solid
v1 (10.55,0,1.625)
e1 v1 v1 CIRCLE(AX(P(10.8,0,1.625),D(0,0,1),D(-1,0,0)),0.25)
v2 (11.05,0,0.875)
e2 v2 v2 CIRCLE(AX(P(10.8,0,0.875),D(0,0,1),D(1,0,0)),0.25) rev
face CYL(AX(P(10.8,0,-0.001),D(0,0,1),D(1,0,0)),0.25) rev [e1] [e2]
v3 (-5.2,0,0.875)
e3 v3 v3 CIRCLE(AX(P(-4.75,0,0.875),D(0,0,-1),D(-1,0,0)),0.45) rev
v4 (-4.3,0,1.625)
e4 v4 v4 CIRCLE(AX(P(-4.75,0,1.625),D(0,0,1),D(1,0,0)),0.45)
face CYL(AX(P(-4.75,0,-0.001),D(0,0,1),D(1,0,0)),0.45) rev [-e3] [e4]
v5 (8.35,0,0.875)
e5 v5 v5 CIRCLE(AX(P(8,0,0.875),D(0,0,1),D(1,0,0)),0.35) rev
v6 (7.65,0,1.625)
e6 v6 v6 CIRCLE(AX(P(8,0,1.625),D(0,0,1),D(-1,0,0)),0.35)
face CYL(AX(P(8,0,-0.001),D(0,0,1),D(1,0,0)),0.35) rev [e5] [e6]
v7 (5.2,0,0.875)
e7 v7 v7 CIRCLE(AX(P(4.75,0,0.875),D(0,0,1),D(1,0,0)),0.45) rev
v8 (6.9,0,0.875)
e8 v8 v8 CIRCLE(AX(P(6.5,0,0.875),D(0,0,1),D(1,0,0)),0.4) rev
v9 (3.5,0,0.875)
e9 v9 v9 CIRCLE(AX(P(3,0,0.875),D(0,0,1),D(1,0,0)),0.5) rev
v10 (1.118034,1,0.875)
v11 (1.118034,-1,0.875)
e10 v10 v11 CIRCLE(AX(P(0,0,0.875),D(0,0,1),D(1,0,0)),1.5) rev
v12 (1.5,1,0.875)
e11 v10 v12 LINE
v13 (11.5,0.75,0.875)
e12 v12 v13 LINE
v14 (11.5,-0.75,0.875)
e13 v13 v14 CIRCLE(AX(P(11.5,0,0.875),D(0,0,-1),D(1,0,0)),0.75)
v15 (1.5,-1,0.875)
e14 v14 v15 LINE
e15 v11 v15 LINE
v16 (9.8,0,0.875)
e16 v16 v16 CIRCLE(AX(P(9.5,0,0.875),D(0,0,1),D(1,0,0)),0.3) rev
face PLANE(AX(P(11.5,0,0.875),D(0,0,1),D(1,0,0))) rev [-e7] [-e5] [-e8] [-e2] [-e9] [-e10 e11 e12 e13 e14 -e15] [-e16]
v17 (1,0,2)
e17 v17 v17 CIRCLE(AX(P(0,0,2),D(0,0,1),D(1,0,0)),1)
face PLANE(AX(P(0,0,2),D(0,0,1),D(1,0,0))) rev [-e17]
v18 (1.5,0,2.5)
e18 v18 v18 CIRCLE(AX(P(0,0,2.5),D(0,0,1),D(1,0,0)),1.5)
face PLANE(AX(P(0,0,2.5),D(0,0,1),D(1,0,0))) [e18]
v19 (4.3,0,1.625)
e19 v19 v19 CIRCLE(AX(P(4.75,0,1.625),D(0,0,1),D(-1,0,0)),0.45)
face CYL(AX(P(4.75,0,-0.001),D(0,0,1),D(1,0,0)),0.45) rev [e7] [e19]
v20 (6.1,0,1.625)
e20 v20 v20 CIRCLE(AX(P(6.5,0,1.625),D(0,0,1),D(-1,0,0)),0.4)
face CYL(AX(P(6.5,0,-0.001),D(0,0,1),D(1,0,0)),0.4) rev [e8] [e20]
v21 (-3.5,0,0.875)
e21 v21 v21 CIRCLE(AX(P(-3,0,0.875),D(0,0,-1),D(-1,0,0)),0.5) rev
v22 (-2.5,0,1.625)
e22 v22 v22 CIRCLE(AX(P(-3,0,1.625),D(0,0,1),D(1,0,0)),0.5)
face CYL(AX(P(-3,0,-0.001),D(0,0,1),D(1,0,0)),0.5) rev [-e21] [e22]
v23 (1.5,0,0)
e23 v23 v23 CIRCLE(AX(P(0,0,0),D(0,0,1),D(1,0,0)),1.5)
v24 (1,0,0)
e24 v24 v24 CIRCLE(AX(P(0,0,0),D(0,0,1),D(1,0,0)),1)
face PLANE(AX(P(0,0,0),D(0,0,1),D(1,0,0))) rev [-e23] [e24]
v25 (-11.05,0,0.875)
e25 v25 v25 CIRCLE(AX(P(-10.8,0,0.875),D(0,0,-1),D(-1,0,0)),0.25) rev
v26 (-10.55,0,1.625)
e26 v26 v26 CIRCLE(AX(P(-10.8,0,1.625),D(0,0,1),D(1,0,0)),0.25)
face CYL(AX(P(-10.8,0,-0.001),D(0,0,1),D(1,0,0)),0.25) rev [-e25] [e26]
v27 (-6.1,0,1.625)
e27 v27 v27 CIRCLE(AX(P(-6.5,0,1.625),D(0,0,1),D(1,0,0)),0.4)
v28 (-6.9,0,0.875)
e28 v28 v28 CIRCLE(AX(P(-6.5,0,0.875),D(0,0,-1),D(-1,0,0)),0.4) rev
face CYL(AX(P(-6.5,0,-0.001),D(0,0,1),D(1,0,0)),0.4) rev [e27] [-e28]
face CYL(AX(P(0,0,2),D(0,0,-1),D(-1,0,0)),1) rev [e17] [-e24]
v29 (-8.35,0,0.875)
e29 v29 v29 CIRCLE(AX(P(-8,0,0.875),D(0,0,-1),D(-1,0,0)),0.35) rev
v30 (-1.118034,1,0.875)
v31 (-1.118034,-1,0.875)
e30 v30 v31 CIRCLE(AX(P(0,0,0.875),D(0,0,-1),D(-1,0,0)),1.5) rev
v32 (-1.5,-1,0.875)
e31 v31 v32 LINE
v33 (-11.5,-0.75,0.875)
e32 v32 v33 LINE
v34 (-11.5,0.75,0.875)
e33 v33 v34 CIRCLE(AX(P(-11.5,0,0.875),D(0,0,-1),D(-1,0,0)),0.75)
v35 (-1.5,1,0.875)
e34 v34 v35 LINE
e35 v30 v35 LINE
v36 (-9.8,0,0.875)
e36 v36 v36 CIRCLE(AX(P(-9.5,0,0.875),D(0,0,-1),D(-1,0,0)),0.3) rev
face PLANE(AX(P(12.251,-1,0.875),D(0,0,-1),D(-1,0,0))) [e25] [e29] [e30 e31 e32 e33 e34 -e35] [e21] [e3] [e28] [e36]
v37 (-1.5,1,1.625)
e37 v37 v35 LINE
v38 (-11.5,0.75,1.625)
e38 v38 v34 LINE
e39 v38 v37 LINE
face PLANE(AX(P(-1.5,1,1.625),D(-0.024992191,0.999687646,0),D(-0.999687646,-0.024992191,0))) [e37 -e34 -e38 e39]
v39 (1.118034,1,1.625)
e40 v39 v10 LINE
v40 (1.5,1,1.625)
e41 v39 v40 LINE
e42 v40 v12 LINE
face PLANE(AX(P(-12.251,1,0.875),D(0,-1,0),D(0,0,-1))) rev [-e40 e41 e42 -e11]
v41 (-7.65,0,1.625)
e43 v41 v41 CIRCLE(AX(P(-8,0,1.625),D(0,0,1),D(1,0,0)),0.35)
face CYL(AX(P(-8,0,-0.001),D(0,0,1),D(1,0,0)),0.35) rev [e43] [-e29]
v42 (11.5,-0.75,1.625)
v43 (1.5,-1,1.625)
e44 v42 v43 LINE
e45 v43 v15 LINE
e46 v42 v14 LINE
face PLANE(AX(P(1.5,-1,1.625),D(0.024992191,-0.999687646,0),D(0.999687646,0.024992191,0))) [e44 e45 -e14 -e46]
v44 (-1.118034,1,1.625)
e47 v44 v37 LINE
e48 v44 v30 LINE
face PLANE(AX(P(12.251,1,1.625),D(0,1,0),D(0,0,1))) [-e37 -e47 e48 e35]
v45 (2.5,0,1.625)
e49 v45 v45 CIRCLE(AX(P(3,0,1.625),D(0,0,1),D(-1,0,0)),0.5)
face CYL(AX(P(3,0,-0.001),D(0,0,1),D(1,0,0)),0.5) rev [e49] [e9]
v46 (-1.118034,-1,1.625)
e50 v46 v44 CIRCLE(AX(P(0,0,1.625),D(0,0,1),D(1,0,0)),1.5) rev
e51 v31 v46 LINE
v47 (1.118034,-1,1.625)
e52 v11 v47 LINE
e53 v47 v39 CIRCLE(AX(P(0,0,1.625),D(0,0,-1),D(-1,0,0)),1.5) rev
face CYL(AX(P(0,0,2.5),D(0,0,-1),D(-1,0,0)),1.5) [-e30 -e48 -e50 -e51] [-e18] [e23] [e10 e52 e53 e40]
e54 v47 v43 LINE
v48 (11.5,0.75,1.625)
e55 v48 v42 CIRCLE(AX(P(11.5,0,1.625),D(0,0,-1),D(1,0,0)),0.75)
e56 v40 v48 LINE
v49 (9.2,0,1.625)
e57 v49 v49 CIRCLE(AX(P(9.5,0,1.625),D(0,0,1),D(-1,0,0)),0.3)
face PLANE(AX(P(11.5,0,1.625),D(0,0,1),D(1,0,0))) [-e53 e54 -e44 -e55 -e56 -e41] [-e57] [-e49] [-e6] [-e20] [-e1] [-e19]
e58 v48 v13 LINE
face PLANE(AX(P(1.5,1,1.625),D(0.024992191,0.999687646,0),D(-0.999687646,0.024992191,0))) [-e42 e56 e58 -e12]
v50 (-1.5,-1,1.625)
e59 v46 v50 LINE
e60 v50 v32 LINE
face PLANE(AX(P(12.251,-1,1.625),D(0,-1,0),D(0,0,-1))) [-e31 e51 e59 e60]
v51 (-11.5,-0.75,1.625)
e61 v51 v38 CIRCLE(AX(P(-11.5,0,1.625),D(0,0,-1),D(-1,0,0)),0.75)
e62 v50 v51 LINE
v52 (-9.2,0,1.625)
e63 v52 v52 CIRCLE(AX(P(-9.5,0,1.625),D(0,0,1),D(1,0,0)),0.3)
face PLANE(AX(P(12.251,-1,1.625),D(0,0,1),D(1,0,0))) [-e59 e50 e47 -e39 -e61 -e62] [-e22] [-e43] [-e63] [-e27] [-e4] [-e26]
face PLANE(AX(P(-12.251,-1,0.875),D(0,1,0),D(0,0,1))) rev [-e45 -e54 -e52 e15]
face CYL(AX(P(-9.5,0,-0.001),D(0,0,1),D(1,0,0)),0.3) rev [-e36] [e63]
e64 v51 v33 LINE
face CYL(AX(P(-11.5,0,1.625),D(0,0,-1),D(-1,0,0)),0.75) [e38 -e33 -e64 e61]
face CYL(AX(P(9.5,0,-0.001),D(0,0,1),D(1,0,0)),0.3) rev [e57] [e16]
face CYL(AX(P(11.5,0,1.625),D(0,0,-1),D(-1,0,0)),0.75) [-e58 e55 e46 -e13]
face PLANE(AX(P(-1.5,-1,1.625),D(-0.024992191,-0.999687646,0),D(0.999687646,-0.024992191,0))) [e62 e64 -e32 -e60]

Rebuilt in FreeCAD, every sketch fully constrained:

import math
import FreeCAD as App
import Part
import Sketcher
Q = App.Units.Quantity

doc = App.newDocument("Part")
body = doc.addObject("PartDesign::Body", "Body")

# Sketch on XY plane
sketch1 = doc.addObject("Sketcher::SketchObject", "Sketch")
body.addObject(sketch1)
sketch1.AttachmentSupport = (doc.XY_Plane, [""])
sketch1.MapMode = "FlatFace"
sketch1.addGeometry(Part.Circle(App.Vector(0, 0, 0), App.Vector(0, 0, 1), 1.5), False)
sketch1.addConstraint([
    Sketcher.Constraint("Coincident", 0, 3, -1, 1),
    Sketcher.Constraint("Diameter", 0, Q("3 mm")),
])
pad1 = doc.addObject("PartDesign::Pad", "Pad")
body.addObject(pad1)
pad1.Profile = sketch1
pad1.Length = 2.5

# Sketch on XY plane
sketch2 = doc.addObject("Sketcher::SketchObject", "Sketch001")
body.addObject(sketch2)
sketch2.AttachmentSupport = (doc.XY_Plane, [""])
sketch2.MapMode = "FlatFace"
sketch2.addGeometry(Part.Circle(App.Vector(0, 0, 0), App.Vector(0, 0, 1), 1), False)
sketch2.addConstraint([
    Sketcher.Constraint("Coincident", 0, 3, -1, 1),
    Sketcher.Constraint("Diameter", 0, Q("2 mm")),
])
pocket1 = doc.addObject("PartDesign::Pocket", "Pocket")
body.addObject(pocket1)
pocket1.Profile = sketch2
pocket1.Length = 2
pocket1.Reversed = True
body2 = doc.addObject("PartDesign::Body", "Body001")

# Sketch on XY plane
sketch3 = doc.addObject("Sketcher::SketchObject", "Sketch002")
body2.addObject(sketch3)
sketch3.AttachmentSupport = (doc.getObject("XY_Plane001"), [""])
sketch3.MapMode = "FlatFace"
sketch3.AttachmentOffset = App.Placement(App.Vector(0, 0, 1.25), App.Rotation())
sketch3.addGeometry([
    Part.LineSegment(App.Vector(-1.5, -1, 0), App.Vector(-11.5, -0.75, 0)),
    Part.ArcOfCircle(Part.Circle(App.Vector(-11.5, 0, 0), App.Vector(0, 0, 1), 0.75), math.radians(90), math.radians(270)),
    Part.LineSegment(App.Vector(-11.5, 0.75, 0), App.Vector(-1.5, 1, 0)),
    Part.LineSegment(App.Vector(-1.5, 1, 0), App.Vector(-1.5, -1, 0)),
], False)
sketch3.addConstraint([
    Sketcher.Constraint("Coincident", 0, 2, 1, 2),
    Sketcher.Constraint("Coincident", 1, 1, 2, 1),
    Sketcher.Constraint("Coincident", 2, 2, 3, 1),
    Sketcher.Constraint("Coincident", 3, 2, 0, 1),
    Sketcher.Constraint("Vertical", 3),
    Sketcher.Constraint("Symmetric", 0, 2, 1, 1, -1),
    Sketcher.Constraint("Vertical", 1, 3, 0, 2),
    Sketcher.Constraint("Equal", 0, 2),
    Sketcher.Constraint("DistanceY", 3, 2, 3, 1, Q("2 mm")),
    Sketcher.Constraint("Radius", 1, Q("0.75 mm")),
    Sketcher.Constraint("DistanceX", 1, 1, 2, 2, Q("10 mm")),
    Sketcher.Constraint("DistanceX", 1, 3, -1, 1, Q("11.5 mm")),
])
pad2 = doc.addObject("PartDesign::Pad", "Pad001")
body2.addObject(pad2)
pad2.Profile = sketch3
pad2.Type = "TwoLengths"
pad2.Length = 0.375
pad2.Length2 = 0.375
pad2.Reversed = True
body3 = doc.addObject("PartDesign::Body", "Body002")

# Sketch on XY plane
sketch4 = doc.addObject("Sketcher::SketchObject", "Sketch003")
body3.addObject(sketch4)
sketch4.AttachmentSupport = (doc.getObject("XY_Plane002"), [""])
sketch4.MapMode = "FlatFace"
sketch4.AttachmentOffset = App.Placement(App.Vector(0, 0, 1.25), App.Rotation())
sketch4.addGeometry([
    Part.LineSegment(App.Vector(1.5, 1, 0), App.Vector(11.5, 0.75, 0)),
    Part.ArcOfCircle(Part.Circle(App.Vector(11.5, 0, 0), App.Vector(0, 0, 1), 0.75), math.radians(-90), math.radians(90)),
    Part.LineSegment(App.Vector(11.5, -0.75, 0), App.Vector(1.5, -1, 0)),
    Part.LineSegment(App.Vector(1.5, -1, 0), App.Vector(1.5, 1, 0)),
], False)
sketch4.addConstraint([
    Sketcher.Constraint("Coincident", 0, 2, 1, 2),
    Sketcher.Constraint("Coincident", 1, 1, 2, 1),
    Sketcher.Constraint("Coincident", 2, 2, 3, 1),
    Sketcher.Constraint("Coincident", 3, 2, 0, 1),
    Sketcher.Constraint("Vertical", 3),
    Sketcher.Constraint("Symmetric", 0, 2, 1, 1, -1),
    Sketcher.Constraint("Vertical", 1, 3, 0, 2),
    Sketcher.Constraint("Equal", 0, 2),
    Sketcher.Constraint("DistanceY", 3, 1, 3, 2, Q("2 mm")),
    Sketcher.Constraint("Radius", 1, Q("0.75 mm")),
    Sketcher.Constraint("DistanceX", 2, 2, 1, 1, Q("10 mm")),
    Sketcher.Constraint("DistanceX", -1, 1, 1, 3, Q("11.5 mm")),
])
pad3 = doc.addObject("PartDesign::Pad", "Pad002")
body3.addObject(pad3)
pad3.Profile = sketch4
pad3.Type = "TwoLengths"
pad3.Length = 0.375
pad3.Length2 = 0.375
pad3.Reversed = True
body.AllowCompound = True
doc.recompute()

boolean = doc.addObject("PartDesign::Boolean", "Boolean")
body.addObject(boolean)
boolean.Type = "Fuse"
boolean.addObjects([body2])

# Sketch on YZ plane
sketch5 = doc.addObject("Sketcher::SketchObject", "Sketch004")
body.addObject(sketch5)
sketch5.AttachmentSupport = (doc.YZ_Plane, [""])
sketch5.MapMode = "FlatFace"
sketch5.AttachmentOffset = App.Placement(App.Vector(0, 0, -1.118034), App.Rotation())
sketch5.addGeometry([
    Part.LineSegment(App.Vector(1, 0.875, 0), App.Vector(-1, 0.875, 0)),
    Part.LineSegment(App.Vector(-1, 0.875, 0), App.Vector(-1, 1.625, 0)),
    Part.LineSegment(App.Vector(-1, 1.625, 0), App.Vector(1, 1.625, 0)),
    Part.LineSegment(App.Vector(1, 1.625, 0), App.Vector(1, 0.875, 0)),
], False)
sketch5.addConstraint([
    Sketcher.Constraint("Coincident", 0, 2, 1, 1),
    Sketcher.Constraint("Coincident", 1, 2, 2, 1),
    Sketcher.Constraint("Coincident", 2, 2, 3, 1),
    Sketcher.Constraint("Coincident", 3, 2, 0, 1),
    Sketcher.Constraint("Horizontal", 0),
    Sketcher.Constraint("Vertical", 1),
    Sketcher.Constraint("Horizontal", 2),
    Sketcher.Constraint("Vertical", 3),
    Sketcher.Constraint("DistanceX", 0, 2, 0, 1, Q("2 mm")),
    Sketcher.Constraint("DistanceX", 0, 2, -1, 1, Q("1 mm")),
    Sketcher.Constraint("DistanceY", 1, 1, 1, 2, Q("0.75 mm")),
    Sketcher.Constraint("DistanceY", -1, 1, 0, 2, Q("0.875 mm")),
])
pad4 = doc.addObject("PartDesign::Pad", "Pad003")
body.addObject(pad4)
pad4.Profile = sketch5
pad4.Length = 0.381966
pad4.Reversed = True
doc.recompute()

boolean2 = doc.addObject("PartDesign::Boolean", "Boolean001")
body.addObject(boolean2)
boolean2.Type = "Fuse"
boolean2.addObjects([body3])

# Sketch on YZ plane
sketch6 = doc.addObject("Sketcher::SketchObject", "Sketch005")
body.addObject(sketch6)
sketch6.AttachmentSupport = (doc.YZ_Plane, [""])
sketch6.MapMode = "FlatFace"
sketch6.AttachmentOffset = App.Placement(App.Vector(0, 0, 1.5), App.Rotation())
sketch6.addGeometry([
    Part.LineSegment(App.Vector(1, 0.875, 0), App.Vector(-1, 0.875, 0)),
    Part.LineSegment(App.Vector(-1, 0.875, 0), App.Vector(-1, 1.625, 0)),
    Part.LineSegment(App.Vector(-1, 1.625, 0), App.Vector(1, 1.625, 0)),
    Part.LineSegment(App.Vector(1, 1.625, 0), App.Vector(1, 0.875, 0)),
], False)
sketch6.addConstraint([
    Sketcher.Constraint("Coincident", 0, 2, 1, 1),
    Sketcher.Constraint("Coincident", 1, 2, 2, 1),
    Sketcher.Constraint("Coincident", 2, 2, 3, 1),
    Sketcher.Constraint("Coincident", 3, 2, 0, 1),
    Sketcher.Constraint("Horizontal", 0),
    Sketcher.Constraint("Vertical", 1),
    Sketcher.Constraint("Horizontal", 2),
    Sketcher.Constraint("Vertical", 3),
    Sketcher.Constraint("DistanceX", 0, 2, 0, 1, Q("2 mm")),
    Sketcher.Constraint("DistanceX", 0, 2, -1, 1, Q("1 mm")),
    Sketcher.Constraint("DistanceY", 1, 1, 1, 2, Q("0.75 mm")),
    Sketcher.Constraint("DistanceY", -1, 1, 0, 2, Q("0.875 mm")),
])
pad5 = doc.addObject("PartDesign::Pad", "Pad004")
body.addObject(pad5)
pad5.Profile = sketch6
pad5.Length = 0.381966
pad5.Reversed = True

# Sketch on XY plane
sketch7 = doc.addObject("Sketcher::SketchObject", "Sketch006")
body.addObject(sketch7)
sketch7.AttachmentSupport = (doc.XY_Plane, [""])
sketch7.MapMode = "FlatFace"
sketch7.AttachmentOffset = App.Placement(App.Vector(0, 0, 1.625), App.Rotation())
sketch7.addGeometry(Part.Circle(App.Vector(-10.8, 0, 0), App.Vector(0, 0, 1), 0.25), False)
sketch7.addConstraint([
    Sketcher.Constraint("PointOnObject", 0, 3, -1),
    Sketcher.Constraint("Diameter", 0, Q("0.5 mm")),
    Sketcher.Constraint("DistanceX", 0, 3, -1, 1, Q("10.8 mm")),
])
pocket2 = doc.addObject("PartDesign::Pocket", "Pocket001")
body.addObject(pocket2)
pocket2.Profile = sketch7
pocket2.Type = "UpToFirst"

# Sketch on XY plane
sketch8 = doc.addObject("Sketcher::SketchObject", "Sketch007")
body.addObject(sketch8)
sketch8.AttachmentSupport = (doc.XY_Plane, [""])
sketch8.MapMode = "FlatFace"
sketch8.AttachmentOffset = App.Placement(App.Vector(0, 0, 1.625), App.Rotation())
sketch8.addGeometry(Part.Circle(App.Vector(-9.5, 0, 0), App.Vector(0, 0, 1), 0.3), False)
sketch8.addConstraint([
    Sketcher.Constraint("PointOnObject", 0, 3, -1),
    Sketcher.Constraint("Diameter", 0, Q("0.6 mm")),
    Sketcher.Constraint("DistanceX", 0, 3, -1, 1, Q("9.5 mm")),
])
pocket3 = doc.addObject("PartDesign::Pocket", "Pocket002")
body.addObject(pocket3)
pocket3.Profile = sketch8
pocket3.Type = "UpToFirst"

# Sketch on XY plane
sketch9 = doc.addObject("Sketcher::SketchObject", "Sketch008")
body.addObject(sketch9)
sketch9.AttachmentSupport = (doc.XY_Plane, [""])
sketch9.MapMode = "FlatFace"
sketch9.AttachmentOffset = App.Placement(App.Vector(0, 0, 1.625), App.Rotation())
sketch9.addGeometry(Part.Circle(App.Vector(-8, 0, 0), App.Vector(0, 0, 1), 0.35), False)
sketch9.addConstraint([
    Sketcher.Constraint("PointOnObject", 0, 3, -1),
    Sketcher.Constraint("Diameter", 0, Q("0.7 mm")),
    Sketcher.Constraint("DistanceX", 0, 3, -1, 1, Q("8 mm")),
])
pocket4 = doc.addObject("PartDesign::Pocket", "Pocket003")
body.addObject(pocket4)
pocket4.Profile = sketch9
pocket4.Type = "UpToFirst"

# Sketch on XY plane
sketch10 = doc.addObject("Sketcher::SketchObject", "Sketch009")
body.addObject(sketch10)
sketch10.AttachmentSupport = (doc.XY_Plane, [""])
sketch10.MapMode = "FlatFace"
sketch10.AttachmentOffset = App.Placement(App.Vector(0, 0, 1.625), App.Rotation())
sketch10.addGeometry(Part.Circle(App.Vector(-6.5, 0, 0), App.Vector(0, 0, 1), 0.4), False)
sketch10.addConstraint([
    Sketcher.Constraint("PointOnObject", 0, 3, -1),
    Sketcher.Constraint("Diameter", 0, Q("0.8 mm")),
    Sketcher.Constraint("DistanceX", 0, 3, -1, 1, Q("6.5 mm")),
])
pocket5 = doc.addObject("PartDesign::Pocket", "Pocket004")
body.addObject(pocket5)
pocket5.Profile = sketch10
pocket5.Type = "UpToFirst"

# Sketch on XY plane
sketch11 = doc.addObject("Sketcher::SketchObject", "Sketch010")
body.addObject(sketch11)
sketch11.AttachmentSupport = (doc.XY_Plane, [""])
sketch11.MapMode = "FlatFace"
sketch11.AttachmentOffset = App.Placement(App.Vector(0, 0, 1.625), App.Rotation())
sketch11.addGeometry(Part.Circle(App.Vector(-4.75, 0, 0), App.Vector(0, 0, 1), 0.45), False)
sketch11.addConstraint([
    Sketcher.Constraint("PointOnObject", 0, 3, -1),
    Sketcher.Constraint("Diameter", 0, Q("0.9 mm")),
    Sketcher.Constraint("DistanceX", 0, 3, -1, 1, Q("4.75 mm")),
])
pocket6 = doc.addObject("PartDesign::Pocket", "Pocket005")
body.addObject(pocket6)
pocket6.Profile = sketch11
pocket6.Type = "UpToFirst"

# Sketch on XY plane
sketch12 = doc.addObject("Sketcher::SketchObject", "Sketch011")
body.addObject(sketch12)
sketch12.AttachmentSupport = (doc.XY_Plane, [""])
sketch12.MapMode = "FlatFace"
sketch12.AttachmentOffset = App.Placement(App.Vector(0, 0, 1.625), App.Rotation())
sketch12.addGeometry(Part.Circle(App.Vector(-3, 0, 0), App.Vector(0, 0, 1), 0.5), False)
sketch12.addConstraint([
    Sketcher.Constraint("PointOnObject", 0, 3, -1),
    Sketcher.Constraint("Diameter", 0, Q("1 mm")),
    Sketcher.Constraint("DistanceX", 0, 3, -1, 1, Q("3 mm")),
])
pocket7 = doc.addObject("PartDesign::Pocket", "Pocket006")
body.addObject(pocket7)
pocket7.Profile = sketch12
pocket7.Type = "UpToFirst"

# Sketch on XY plane
sketch13 = doc.addObject("Sketcher::SketchObject", "Sketch012")
body.addObject(sketch13)
sketch13.AttachmentSupport = (doc.XY_Plane, [""])
sketch13.MapMode = "FlatFace"
sketch13.AttachmentOffset = App.Placement(App.Vector(0, 0, 1.625), App.Rotation())
sketch13.addGeometry(Part.Circle(App.Vector(3, 0, 0), App.Vector(0, 0, 1), 0.5), False)
sketch13.addConstraint([
    Sketcher.Constraint("PointOnObject", 0, 3, -1),
    Sketcher.Constraint("Diameter", 0, Q("1 mm")),
    Sketcher.Constraint("DistanceX", -1, 1, 0, 3, Q("3 mm")),
])
pocket8 = doc.addObject("PartDesign::Pocket", "Pocket007")
body.addObject(pocket8)
pocket8.Profile = sketch13
pocket8.Type = "UpToFirst"

# Sketch on XY plane
sketch14 = doc.addObject("Sketcher::SketchObject", "Sketch013")
body.addObject(sketch14)
sketch14.AttachmentSupport = (doc.XY_Plane, [""])
sketch14.MapMode = "FlatFace"
sketch14.AttachmentOffset = App.Placement(App.Vector(0, 0, 1.625), App.Rotation())
sketch14.addGeometry(Part.Circle(App.Vector(4.75, 0, 0), App.Vector(0, 0, 1), 0.45), False)
sketch14.addConstraint([
    Sketcher.Constraint("PointOnObject", 0, 3, -1),
    Sketcher.Constraint("Diameter", 0, Q("0.9 mm")),
    Sketcher.Constraint("DistanceX", -1, 1, 0, 3, Q("4.75 mm")),
])
pocket9 = doc.addObject("PartDesign::Pocket", "Pocket008")
body.addObject(pocket9)
pocket9.Profile = sketch14
pocket9.Type = "UpToFirst"

# Sketch on XY plane
sketch15 = doc.addObject("Sketcher::SketchObject", "Sketch014")
body.addObject(sketch15)
sketch15.AttachmentSupport = (doc.XY_Plane, [""])
sketch15.MapMode = "FlatFace"
sketch15.AttachmentOffset = App.Placement(App.Vector(0, 0, 1.625), App.Rotation())
sketch15.addGeometry(Part.Circle(App.Vector(6.5, 0, 0), App.Vector(0, 0, 1), 0.4), False)
sketch15.addConstraint([
    Sketcher.Constraint("PointOnObject", 0, 3, -1),
    Sketcher.Constraint("Diameter", 0, Q("0.8 mm")),
    Sketcher.Constraint("DistanceX", -1, 1, 0, 3, Q("6.5 mm")),
])
pocket10 = doc.addObject("PartDesign::Pocket", "Pocket009")
body.addObject(pocket10)
pocket10.Profile = sketch15
pocket10.Type = "UpToFirst"

# Sketch on XY plane
sketch16 = doc.addObject("Sketcher::SketchObject", "Sketch015")
body.addObject(sketch16)
sketch16.AttachmentSupport = (doc.XY_Plane, [""])
sketch16.MapMode = "FlatFace"
sketch16.AttachmentOffset = App.Placement(App.Vector(0, 0, 1.625), App.Rotation())
sketch16.addGeometry(Part.Circle(App.Vector(8, 0, 0), App.Vector(0, 0, 1), 0.35), False)
sketch16.addConstraint([
    Sketcher.Constraint("PointOnObject", 0, 3, -1),
    Sketcher.Constraint("Diameter", 0, Q("0.7 mm")),
    Sketcher.Constraint("DistanceX", -1, 1, 0, 3, Q("8 mm")),
])
pocket11 = doc.addObject("PartDesign::Pocket", "Pocket010")
body.addObject(pocket11)
pocket11.Profile = sketch16
pocket11.Type = "UpToFirst"

# Sketch on XY plane
sketch17 = doc.addObject("Sketcher::SketchObject", "Sketch016")
body.addObject(sketch17)
sketch17.AttachmentSupport = (doc.XY_Plane, [""])
sketch17.MapMode = "FlatFace"
sketch17.AttachmentOffset = App.Placement(App.Vector(0, 0, 1.625), App.Rotation())
sketch17.addGeometry(Part.Circle(App.Vector(9.5, 0, 0), App.Vector(0, 0, 1), 0.3), False)
sketch17.addConstraint([
    Sketcher.Constraint("PointOnObject", 0, 3, -1),
    Sketcher.Constraint("Diameter", 0, Q("0.6 mm")),
    Sketcher.Constraint("DistanceX", -1, 1, 0, 3, Q("9.5 mm")),
])
pocket12 = doc.addObject("PartDesign::Pocket", "Pocket011")
body.addObject(pocket12)
pocket12.Profile = sketch17
pocket12.Type = "UpToFirst"

# Sketch on XY plane
sketch18 = doc.addObject("Sketcher::SketchObject", "Sketch017")
body.addObject(sketch18)
sketch18.AttachmentSupport = (doc.XY_Plane, [""])
sketch18.MapMode = "FlatFace"
sketch18.AttachmentOffset = App.Placement(App.Vector(0, 0, 1.625), App.Rotation())
sketch18.addGeometry(Part.Circle(App.Vector(10.8, 0, 0), App.Vector(0, 0, 1), 0.25), False)
sketch18.addConstraint([
    Sketcher.Constraint("PointOnObject", 0, 3, -1),
    Sketcher.Constraint("Diameter", 0, Q("0.5 mm")),
    Sketcher.Constraint("DistanceX", -1, 1, 0, 3, Q("10.8 mm")),
])
pocket13 = doc.addObject("PartDesign::Pocket", "Pocket012")
body.addObject(pocket13)
pocket13.Profile = sketch18
pocket13.Type = "UpToFirst"

doc.recompute()
